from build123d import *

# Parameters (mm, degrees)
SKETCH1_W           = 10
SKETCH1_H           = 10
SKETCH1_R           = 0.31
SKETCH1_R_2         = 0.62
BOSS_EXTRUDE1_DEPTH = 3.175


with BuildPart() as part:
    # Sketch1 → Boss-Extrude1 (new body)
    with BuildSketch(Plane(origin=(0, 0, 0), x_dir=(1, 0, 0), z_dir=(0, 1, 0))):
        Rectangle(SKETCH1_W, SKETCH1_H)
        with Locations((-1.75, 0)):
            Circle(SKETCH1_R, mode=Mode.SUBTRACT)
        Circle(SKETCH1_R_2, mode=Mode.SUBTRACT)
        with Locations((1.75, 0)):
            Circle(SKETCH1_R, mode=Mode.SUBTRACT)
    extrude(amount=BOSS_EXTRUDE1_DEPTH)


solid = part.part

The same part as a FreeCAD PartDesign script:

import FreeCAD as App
import Part
import Sketcher
from FreeCAD import Vector
Q = App.Units.Quantity


def add_polygon(sketch, points):
    """Adds a closed chain of lines whose ends are joined by coincident constraints."""
    first, n = sketch.GeometryCount, len(points)
    for a, b in zip(points, points[1:] + points[:1]):
        sketch.addGeometry(Part.LineSegment(App.Vector(*a, 0), App.Vector(*b, 0)), False)
    for i in range(n):
        sketch.addConstraint(Sketcher.Constraint("Coincident", first + i, 2, first + (i + 1) % n, 1))

doc = App.newDocument("Part")
body = doc.addObject("PartDesign::Body", "Body")

# Sketch on XZ plane
sketch1 = body.newObject("Sketcher::SketchObject", "Sketch")
sketch1.AttachmentSupport = (doc.getObject("XZ_Plane"), [""])
sketch1.MapMode = "FlatFace"
add_polygon(sketch1, [(-5, -5), (-5, 5), (5, 5), (5, -5)])  # lines 0-3
sketch1.addGeometry(Part.Circle(Vector(-1.75, 0, 0), Vector(0, 0, 1), 0.31), False)  # 4
sketch1.addGeometry(Part.Circle(Vector(0, 0, 0), Vector(0, 0, 1), 0.62), False)  # 5
sketch1.addGeometry(Part.Circle(Vector(1.75, 0, 0), Vector(0, 0, 1), 0.31), False)  # 6
sketch1.addConstraint([
    Sketcher.Constraint("Vertical", 0),
    Sketcher.Constraint("Horizontal", 1),
    Sketcher.Constraint("Vertical", 2),
    Sketcher.Constraint("Horizontal", 3),
    Sketcher.Constraint("Coincident", 5, 3, -1, 1),
    Sketcher.Constraint("Equal", 4, 6),
    Sketcher.Constraint("Symmetric", 4, 3, 6, 3, -1, 1),
    Sketcher.Constraint("Symmetric", 0, 2, 2, 2, -1, 1),
    Sketcher.Constraint("PointOnObject", 4, 3, -1),
    Sketcher.Constraint("Equal", 3, 0),
    Sketcher.Constraint("Diameter", 4, Q("0.62 mm")),
    Sketcher.Constraint("Diameter", 5, Q("1.24 mm")),
    Sketcher.Constraint("DistanceX", 1, 1, 1, 2, Q("10 mm")),
    Sketcher.Constraint("DistanceX", 4, 3, 6, 3, Q("3.5 mm")),
])
pad1 = body.newObject("PartDesign::Pad", "Pad")
pad1.Profile = sketch1
pad1.Length = 3.175
pad1.Reversed = True

doc.recompute()
